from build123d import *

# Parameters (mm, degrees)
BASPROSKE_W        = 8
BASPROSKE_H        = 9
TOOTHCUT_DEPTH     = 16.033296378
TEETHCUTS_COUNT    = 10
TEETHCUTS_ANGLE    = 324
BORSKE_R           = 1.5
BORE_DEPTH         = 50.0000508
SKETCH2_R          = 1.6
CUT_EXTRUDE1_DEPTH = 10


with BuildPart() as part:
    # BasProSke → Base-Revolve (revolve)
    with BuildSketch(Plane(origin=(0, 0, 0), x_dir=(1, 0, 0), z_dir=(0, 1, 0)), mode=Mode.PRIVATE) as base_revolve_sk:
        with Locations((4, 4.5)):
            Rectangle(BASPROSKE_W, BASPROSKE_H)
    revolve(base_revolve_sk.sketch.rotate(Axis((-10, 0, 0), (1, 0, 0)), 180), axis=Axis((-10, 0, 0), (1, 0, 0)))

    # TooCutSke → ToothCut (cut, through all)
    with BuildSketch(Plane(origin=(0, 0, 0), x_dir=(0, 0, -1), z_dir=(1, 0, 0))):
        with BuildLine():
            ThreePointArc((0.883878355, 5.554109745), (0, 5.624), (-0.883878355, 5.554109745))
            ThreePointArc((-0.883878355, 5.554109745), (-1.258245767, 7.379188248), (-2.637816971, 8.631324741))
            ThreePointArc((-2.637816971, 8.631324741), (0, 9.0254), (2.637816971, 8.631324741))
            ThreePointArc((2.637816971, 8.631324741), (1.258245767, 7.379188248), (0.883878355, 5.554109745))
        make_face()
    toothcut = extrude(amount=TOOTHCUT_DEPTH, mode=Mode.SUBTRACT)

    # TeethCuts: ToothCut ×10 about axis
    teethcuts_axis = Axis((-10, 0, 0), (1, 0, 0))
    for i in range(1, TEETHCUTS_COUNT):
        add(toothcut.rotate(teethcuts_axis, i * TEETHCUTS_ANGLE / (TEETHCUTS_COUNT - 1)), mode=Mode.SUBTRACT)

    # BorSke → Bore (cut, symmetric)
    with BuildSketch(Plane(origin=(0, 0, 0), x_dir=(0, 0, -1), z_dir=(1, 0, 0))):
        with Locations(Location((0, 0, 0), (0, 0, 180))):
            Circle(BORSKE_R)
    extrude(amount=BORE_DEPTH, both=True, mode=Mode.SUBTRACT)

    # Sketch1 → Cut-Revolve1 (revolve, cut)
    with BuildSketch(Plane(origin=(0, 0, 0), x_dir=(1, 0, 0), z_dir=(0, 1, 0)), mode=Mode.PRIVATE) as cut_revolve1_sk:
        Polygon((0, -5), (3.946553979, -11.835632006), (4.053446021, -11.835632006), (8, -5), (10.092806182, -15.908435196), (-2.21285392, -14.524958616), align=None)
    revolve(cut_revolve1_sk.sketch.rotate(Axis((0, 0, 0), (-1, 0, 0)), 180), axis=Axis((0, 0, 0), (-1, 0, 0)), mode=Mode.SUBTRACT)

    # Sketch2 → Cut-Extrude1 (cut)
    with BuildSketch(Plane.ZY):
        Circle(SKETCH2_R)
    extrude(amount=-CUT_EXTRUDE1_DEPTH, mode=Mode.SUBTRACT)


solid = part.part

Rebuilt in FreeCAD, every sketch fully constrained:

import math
import FreeCAD as App
import Part
import Sketcher

V = App.Vector
Q = App.Units.Quantity

doc = App.newDocument("Part")
params = doc.addObject("Spreadsheet::Sheet", "Params")
for row, (alias, value) in enumerate([
    ("sketch1_width", "8 mm"),
    ("sketch1_height", "9 mm"),
    ("revolution_angle", "360 deg"),
    ("sketch2_radius", "3 mm"),
    ("sketch3_diameter", "3 mm"),
    ("pocket2_length", "100.000102 mm"),
    ("groove_angle", "360 deg"),
    ("sketch5_diameter", "3.2 mm"),
    ("pocket3_length", "10 mm"),
], start=1):
    params.set(f"A{row}", alias)
    params.set(f"B{row}", "=" + value)
    params.setAlias(f"B{row}", alias)

body = doc.addObject("PartDesign::Body", "Body")

sketch1 = body.newObject("Sketcher::SketchObject", "Sketch")
sketch1.AttachmentSupport = (doc.getObject("XZ_Plane"), [""])
sketch1.MapMode = "FlatFace"
sketch1.addGeometry([
    Part.LineSegment(V(0, -9, 0), V(0, 0, 0)),
    Part.LineSegment(V(0, 0, 0), V(8, 0, 0)),
    Part.LineSegment(V(8, 0, 0), V(8, -9, 0)),
    Part.LineSegment(V(8, -9, 0), V(0, -9, 0)),
], False)
sketch1.addConstraint([
    Sketcher.Constraint("Coincident", 0, 2, 1, 1),
    Sketcher.Constraint("Coincident", 1, 2, 2, 1),
    Sketcher.Constraint("Coincident", 2, 2, 3, 1),
    Sketcher.Constraint("Coincident", 3, 2, 0, 1),
    Sketcher.Constraint("Vertical", 0),
    Sketcher.Constraint("Horizontal", 1),
    Sketcher.Constraint("Vertical", 2),
    Sketcher.Constraint("Horizontal", 3),
    Sketcher.Constraint("Coincident", 0, 2, -1, 1),
    Sketcher.Constraint("DistanceX", 1, 1, 1, 2, Q("8 mm")),
    Sketcher.Constraint("DistanceY", 0, 1, 0, 2, Q("9 mm")),
])
sketch1.setExpression("Constraints[9]", "Params.sketch1_width")
sketch1.setExpression("Constraints[10]", "Params.sketch1_height")
revolution = body.newObject("PartDesign::Revolution", "Revolution")
revolution.Profile = sketch1
revolution.ReferenceAxis = (sketch1, ["H_Axis"])
revolution.setExpression("Angle", "Params.revolution_angle")

sketch2 = body.newObject("Sketcher::SketchObject", "Sketch001")
sketch2.AttachmentSupport = (doc.getObject("YZ_Plane"), [""])
sketch2.MapMode = "FlatFace"
sketch2.addGeometry([
    Part.ArcOfCircle(Part.Circle(V(0, 0, 0), V(0, 0, 1), 5.6), math.radians(-9.04), math.radians(9.04)),
    Part.ArcOfCircle(Part.Circle(V(5.9, -3.9, 0), V(0, 0, 1), 3), math.radians(24), math.radians(96)),
    Part.ArcOfCircle(Part.Circle(V(0, 0, 0), V(0, 0, 1), 9), math.radians(-17), math.radians(17)),
    Part.ArcOfCircle(Part.Circle(V(5.9, 3.9, 0), V(0, 0, 1), 3), math.radians(-96), math.radians(-24)),
], False)
sketch2.addConstraint([
    Sketcher.Constraint("Coincident", 0, 1, 1, 2),
    Sketcher.Constraint("Coincident", 1, 1, 2, 1),
    Sketcher.Constraint("Coincident", 2, 2, 3, 2),
    Sketcher.Constraint("Coincident", 3, 1, 0, 2),
    Sketcher.Constraint("Coincident", 0, 3, -1, 1),
    Sketcher.Constraint("Coincident", 2, 3, -1, 1),
    Sketcher.Constraint("Equal", 1, 3),
    Sketcher.Constraint("Symmetric", 1, 3, 3, 3, -1),
    Sketcher.Constraint("Radius", 1, Q("3 mm")),
    Sketcher.Constraint("Radius", 0, Q("5.624 mm")),
    Sketcher.Constraint("Radius", 2, Q("9.0254 mm")),
    Sketcher.Constraint("DistanceX", 1, 3, 1, 1, Q("2.737698 mm")),
    Sketcher.Constraint("DistanceX", -1, 1, 0, 1, Q("5.55411 mm")),
])
sketch2.setExpression("Constraints[8]", "Params.sketch2_radius")
pocket1 = body.newObject("PartDesign::Pocket", "Pocket")
pocket1.Profile = sketch2
pocket1.Type = "ThroughAll"
pocket1.Reversed = True
doc.recompute()

polarpattern = body.newObject("PartDesign::PolarPattern", "PolarPattern")
polarpattern.Originals = [pocket1]
polarpattern.Axis = (doc.getObject("X_Axis"), [""])
polarpattern.Angle = 360
polarpattern.Occurrences = 10
body.Tip = polarpattern

sketch3 = body.newObject("Sketcher::SketchObject", "Sketch002")
sketch3.AttachmentSupport = (doc.getObject("YZ_Plane"), [""])
sketch3.MapMode = "FlatFace"
sketch3.addGeometry(Part.Circle(V(0, 0, 0), V(0, 0, 1), 1.5), False)
sketch3.addConstraint([
    Sketcher.Constraint("Coincident", 0, 3, -1, 1),
    Sketcher.Constraint("Diameter", 0, Q("3 mm")),
])
sketch3.setExpression("Constraints[1]", "Params.sketch3_diameter")
pocket2 = body.newObject("PartDesign::Pocket", "Pocket001")
pocket2.Profile = sketch3
pocket2.setExpression("Length", "Params.pocket2_length")
pocket2.Midplane = True

sketch4 = body.newObject("Sketcher::SketchObject", "Sketch003")
sketch4.AttachmentSupport = (doc.getObject("XZ_Plane"), [""])
sketch4.MapMode = "FlatFace"
sketch4.addGeometry([
    Part.LineSegment(V(3.95, 11.84, 0), V(0, 5, 0)),
    Part.LineSegment(V(0, 5, 0), V(-2.21, 14.52, 0)),
    Part.LineSegment(V(-2.21, 14.52, 0), V(10.09, 15.91, 0)),
    Part.LineSegment(V(10.09, 15.91, 0), V(8, 5, 0)),
    Part.LineSegment(V(8, 5, 0), V(4.05, 11.84, 0)),
    Part.LineSegment(V(4.05, 11.84, 0), V(3.95, 11.84, 0)),
], False)
sketch4.addConstraint([
    Sketcher.Constraint("Coincident", 0, 2, 1, 1),
    Sketcher.Constraint("Coincident", 1, 2, 2, 1),
    Sketcher.Constraint("Coincident", 2, 2, 3, 1),
    Sketcher.Constraint("Coincident", 3, 2, 4, 1),
    Sketcher.Constraint("Coincident", 4, 2, 5, 1),
    Sketcher.Constraint("Coincident", 5, 2, 0, 1),
    Sketcher.Constraint("Horizontal", 5),
    Sketcher.Constraint("PointOnObject", 0, 2, -2),
    Sketcher.Constraint("Horizontal", 0, 2, 3, 2),
    Sketcher.Constraint("Equal", 0, 4),
    Sketcher.Constraint("Angle", 0, Q("-120 deg")),
    Sketcher.Constraint("DistanceY", -1, 1, 0, 2, Q("5 mm")),
    Sketcher.Constraint("DistanceX", -1, 1, 3, 2, Q("8 mm")),
    Sketcher.Constraint("DistanceX", 1, 2, 4, 2, Q("6.2663 mm")),
    Sketcher.Constraint("DistanceX", 5, 2, 5, 1, Q("0.106892 mm")),
    Sketcher.Constraint("DistanceY", -1, 1, 1, 2, Q("14.524959 mm")),
    Sketcher.Constraint("DistanceX", 1, 2, 2, 2, Q("12.30566 mm")),
    Sketcher.Constraint("Distance", 2, Q("12.383185 mm")),
])
groove = body.newObject("PartDesign::Groove", "Groove")
groove.Profile = sketch4
groove.ReferenceAxis = (sketch4, ["H_Axis"])
groove.setExpression("Angle", "Params.groove_angle")

sketch5 = body.newObject("Sketcher::SketchObject", "Sketch004")
sketch5.AttachmentSupport = (doc.getObject("YZ_Plane"), [""])
sketch5.MapMode = "FlatFace"
sketch5.addGeometry(Part.Circle(V(0, 0, 0), V(0, 0, 1), 1.6), False)
sketch5.addConstraint([
    Sketcher.Constraint("Coincident", 0, 3, -1, 1),
    Sketcher.Constraint("Diameter", 0, Q("3.2 mm")),
])
sketch5.setExpression("Constraints[1]", "Params.sketch5_diameter")
pocket3 = body.newObject("PartDesign::Pocket", "Pocket002")
pocket3.Profile = sketch5
pocket3.setExpression("Length", "Params.pocket3_length")
pocket3.Reversed = True

doc.recompute()
